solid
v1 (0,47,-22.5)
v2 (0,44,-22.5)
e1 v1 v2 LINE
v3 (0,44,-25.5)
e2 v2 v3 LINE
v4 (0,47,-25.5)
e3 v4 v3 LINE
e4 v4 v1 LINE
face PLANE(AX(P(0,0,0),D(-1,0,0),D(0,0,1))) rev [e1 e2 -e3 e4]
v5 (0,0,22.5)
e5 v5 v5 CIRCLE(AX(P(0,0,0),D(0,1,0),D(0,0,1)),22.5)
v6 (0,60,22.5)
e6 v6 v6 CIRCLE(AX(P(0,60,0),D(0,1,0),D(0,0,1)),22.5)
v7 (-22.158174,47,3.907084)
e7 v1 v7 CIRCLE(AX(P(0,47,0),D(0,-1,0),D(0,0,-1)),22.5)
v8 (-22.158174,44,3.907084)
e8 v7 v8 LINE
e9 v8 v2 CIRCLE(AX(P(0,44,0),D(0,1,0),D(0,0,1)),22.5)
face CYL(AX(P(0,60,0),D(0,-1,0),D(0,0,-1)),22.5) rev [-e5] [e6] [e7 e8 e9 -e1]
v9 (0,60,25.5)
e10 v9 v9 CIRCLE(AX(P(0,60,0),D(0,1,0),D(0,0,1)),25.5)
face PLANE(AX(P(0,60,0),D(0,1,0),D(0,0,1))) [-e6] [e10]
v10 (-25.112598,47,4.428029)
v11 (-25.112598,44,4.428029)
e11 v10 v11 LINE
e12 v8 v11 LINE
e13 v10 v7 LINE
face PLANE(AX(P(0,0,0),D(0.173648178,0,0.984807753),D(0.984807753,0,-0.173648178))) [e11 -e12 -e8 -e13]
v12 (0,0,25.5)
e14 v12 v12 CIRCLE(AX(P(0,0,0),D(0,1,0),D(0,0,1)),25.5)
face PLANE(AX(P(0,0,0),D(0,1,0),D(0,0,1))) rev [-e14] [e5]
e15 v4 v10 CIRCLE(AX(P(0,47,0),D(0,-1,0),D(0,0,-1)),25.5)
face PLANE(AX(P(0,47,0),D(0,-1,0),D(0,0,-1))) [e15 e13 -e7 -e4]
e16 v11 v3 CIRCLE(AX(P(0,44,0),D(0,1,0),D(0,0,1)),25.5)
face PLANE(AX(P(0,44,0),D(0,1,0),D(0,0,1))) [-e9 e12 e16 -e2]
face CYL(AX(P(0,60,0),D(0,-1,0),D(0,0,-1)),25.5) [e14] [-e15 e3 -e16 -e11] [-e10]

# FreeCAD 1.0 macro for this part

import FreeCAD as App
import Part
import Sketcher

V = App.Vector

doc = App.newDocument("Part")
body = doc.addObject("PartDesign::Body", "Body")

sketch1 = body.newObject("Sketcher::SketchObject", "Sketch")
sketch1.AttachmentSupport = (doc.getObject("XZ_Plane"), [""])
sketch1.MapMode = "FlatFace"
sketch1.addGeometry([
    Part.Circle(V(0, 0, 0), V(0, 0, 1), 26),
    Part.Circle(V(0, 0, 0), V(0, 0, 1), 22),
], False)
sketch1.addConstraint([
    Sketcher.Constraint("Coincident", 0, 3, -1, 1),
    Sketcher.Constraint("Coincident", 1, 3, -1, 1),
    Sketcher.Constraint("Diameter", 0, 51.0),
    Sketcher.Constraint("Diameter", 1, 45.0),
])
pad1 = body.newObject("PartDesign::Pad", "Pad")
pad1.Profile = sketch1
pad1.Length = 60
pad1.Reversed = True

sketch2 = body.newObject("Sketcher::SketchObject", "Sketch001")
sketch2.AttachmentSupport = (doc.getObject("YZ_Plane"), [""])
sketch2.MapMode = "FlatFace"
sketch2.addGeometry([
    Part.LineSegment(V(47, 0, 0), V(44, 0, 0)),
    Part.LineSegment(V(44, 0, 0), V(44, -46.8, 0)),
    Part.LineSegment(V(44, -46.8, 0), V(47, -46.8, 0)),
    Part.LineSegment(V(47, -46.8, 0), V(47, 0, 0)),
], False)
sketch2.addConstraint([
    Sketcher.Constraint("Coincident", 0, 2, 1, 1),
    Sketcher.Constraint("Coincident", 1, 2, 2, 1),
    Sketcher.Constraint("Coincident", 2, 2, 3, 1),
    Sketcher.Constraint("Coincident", 3, 2, 0, 1),
    Sketcher.Constraint("Horizontal", 0),
    Sketcher.Constraint("Vertical", 1),
    Sketcher.Constraint("Horizontal", 2),
    Sketcher.Constraint("Vertical", 3),
    Sketcher.Constraint("PointOnObject", 0, 2, -1),
    Sketcher.Constraint("DistanceX", 0, 2, 0, 1, 3.0),
    Sketcher.Constraint("DistanceX", -1, 1, 0, 2, 44.0),
    Sketcher.Constraint("DistanceY", 1, 2, 1, 1, 46.809185),
])
groove = body.newObject("PartDesign::Groove", "Groove")
groove.Profile = sketch2
groove.ReferenceAxis = (sketch2, ["H_Axis"])
groove.Angle = 260
groove.Reversed = True

doc.recompute()
